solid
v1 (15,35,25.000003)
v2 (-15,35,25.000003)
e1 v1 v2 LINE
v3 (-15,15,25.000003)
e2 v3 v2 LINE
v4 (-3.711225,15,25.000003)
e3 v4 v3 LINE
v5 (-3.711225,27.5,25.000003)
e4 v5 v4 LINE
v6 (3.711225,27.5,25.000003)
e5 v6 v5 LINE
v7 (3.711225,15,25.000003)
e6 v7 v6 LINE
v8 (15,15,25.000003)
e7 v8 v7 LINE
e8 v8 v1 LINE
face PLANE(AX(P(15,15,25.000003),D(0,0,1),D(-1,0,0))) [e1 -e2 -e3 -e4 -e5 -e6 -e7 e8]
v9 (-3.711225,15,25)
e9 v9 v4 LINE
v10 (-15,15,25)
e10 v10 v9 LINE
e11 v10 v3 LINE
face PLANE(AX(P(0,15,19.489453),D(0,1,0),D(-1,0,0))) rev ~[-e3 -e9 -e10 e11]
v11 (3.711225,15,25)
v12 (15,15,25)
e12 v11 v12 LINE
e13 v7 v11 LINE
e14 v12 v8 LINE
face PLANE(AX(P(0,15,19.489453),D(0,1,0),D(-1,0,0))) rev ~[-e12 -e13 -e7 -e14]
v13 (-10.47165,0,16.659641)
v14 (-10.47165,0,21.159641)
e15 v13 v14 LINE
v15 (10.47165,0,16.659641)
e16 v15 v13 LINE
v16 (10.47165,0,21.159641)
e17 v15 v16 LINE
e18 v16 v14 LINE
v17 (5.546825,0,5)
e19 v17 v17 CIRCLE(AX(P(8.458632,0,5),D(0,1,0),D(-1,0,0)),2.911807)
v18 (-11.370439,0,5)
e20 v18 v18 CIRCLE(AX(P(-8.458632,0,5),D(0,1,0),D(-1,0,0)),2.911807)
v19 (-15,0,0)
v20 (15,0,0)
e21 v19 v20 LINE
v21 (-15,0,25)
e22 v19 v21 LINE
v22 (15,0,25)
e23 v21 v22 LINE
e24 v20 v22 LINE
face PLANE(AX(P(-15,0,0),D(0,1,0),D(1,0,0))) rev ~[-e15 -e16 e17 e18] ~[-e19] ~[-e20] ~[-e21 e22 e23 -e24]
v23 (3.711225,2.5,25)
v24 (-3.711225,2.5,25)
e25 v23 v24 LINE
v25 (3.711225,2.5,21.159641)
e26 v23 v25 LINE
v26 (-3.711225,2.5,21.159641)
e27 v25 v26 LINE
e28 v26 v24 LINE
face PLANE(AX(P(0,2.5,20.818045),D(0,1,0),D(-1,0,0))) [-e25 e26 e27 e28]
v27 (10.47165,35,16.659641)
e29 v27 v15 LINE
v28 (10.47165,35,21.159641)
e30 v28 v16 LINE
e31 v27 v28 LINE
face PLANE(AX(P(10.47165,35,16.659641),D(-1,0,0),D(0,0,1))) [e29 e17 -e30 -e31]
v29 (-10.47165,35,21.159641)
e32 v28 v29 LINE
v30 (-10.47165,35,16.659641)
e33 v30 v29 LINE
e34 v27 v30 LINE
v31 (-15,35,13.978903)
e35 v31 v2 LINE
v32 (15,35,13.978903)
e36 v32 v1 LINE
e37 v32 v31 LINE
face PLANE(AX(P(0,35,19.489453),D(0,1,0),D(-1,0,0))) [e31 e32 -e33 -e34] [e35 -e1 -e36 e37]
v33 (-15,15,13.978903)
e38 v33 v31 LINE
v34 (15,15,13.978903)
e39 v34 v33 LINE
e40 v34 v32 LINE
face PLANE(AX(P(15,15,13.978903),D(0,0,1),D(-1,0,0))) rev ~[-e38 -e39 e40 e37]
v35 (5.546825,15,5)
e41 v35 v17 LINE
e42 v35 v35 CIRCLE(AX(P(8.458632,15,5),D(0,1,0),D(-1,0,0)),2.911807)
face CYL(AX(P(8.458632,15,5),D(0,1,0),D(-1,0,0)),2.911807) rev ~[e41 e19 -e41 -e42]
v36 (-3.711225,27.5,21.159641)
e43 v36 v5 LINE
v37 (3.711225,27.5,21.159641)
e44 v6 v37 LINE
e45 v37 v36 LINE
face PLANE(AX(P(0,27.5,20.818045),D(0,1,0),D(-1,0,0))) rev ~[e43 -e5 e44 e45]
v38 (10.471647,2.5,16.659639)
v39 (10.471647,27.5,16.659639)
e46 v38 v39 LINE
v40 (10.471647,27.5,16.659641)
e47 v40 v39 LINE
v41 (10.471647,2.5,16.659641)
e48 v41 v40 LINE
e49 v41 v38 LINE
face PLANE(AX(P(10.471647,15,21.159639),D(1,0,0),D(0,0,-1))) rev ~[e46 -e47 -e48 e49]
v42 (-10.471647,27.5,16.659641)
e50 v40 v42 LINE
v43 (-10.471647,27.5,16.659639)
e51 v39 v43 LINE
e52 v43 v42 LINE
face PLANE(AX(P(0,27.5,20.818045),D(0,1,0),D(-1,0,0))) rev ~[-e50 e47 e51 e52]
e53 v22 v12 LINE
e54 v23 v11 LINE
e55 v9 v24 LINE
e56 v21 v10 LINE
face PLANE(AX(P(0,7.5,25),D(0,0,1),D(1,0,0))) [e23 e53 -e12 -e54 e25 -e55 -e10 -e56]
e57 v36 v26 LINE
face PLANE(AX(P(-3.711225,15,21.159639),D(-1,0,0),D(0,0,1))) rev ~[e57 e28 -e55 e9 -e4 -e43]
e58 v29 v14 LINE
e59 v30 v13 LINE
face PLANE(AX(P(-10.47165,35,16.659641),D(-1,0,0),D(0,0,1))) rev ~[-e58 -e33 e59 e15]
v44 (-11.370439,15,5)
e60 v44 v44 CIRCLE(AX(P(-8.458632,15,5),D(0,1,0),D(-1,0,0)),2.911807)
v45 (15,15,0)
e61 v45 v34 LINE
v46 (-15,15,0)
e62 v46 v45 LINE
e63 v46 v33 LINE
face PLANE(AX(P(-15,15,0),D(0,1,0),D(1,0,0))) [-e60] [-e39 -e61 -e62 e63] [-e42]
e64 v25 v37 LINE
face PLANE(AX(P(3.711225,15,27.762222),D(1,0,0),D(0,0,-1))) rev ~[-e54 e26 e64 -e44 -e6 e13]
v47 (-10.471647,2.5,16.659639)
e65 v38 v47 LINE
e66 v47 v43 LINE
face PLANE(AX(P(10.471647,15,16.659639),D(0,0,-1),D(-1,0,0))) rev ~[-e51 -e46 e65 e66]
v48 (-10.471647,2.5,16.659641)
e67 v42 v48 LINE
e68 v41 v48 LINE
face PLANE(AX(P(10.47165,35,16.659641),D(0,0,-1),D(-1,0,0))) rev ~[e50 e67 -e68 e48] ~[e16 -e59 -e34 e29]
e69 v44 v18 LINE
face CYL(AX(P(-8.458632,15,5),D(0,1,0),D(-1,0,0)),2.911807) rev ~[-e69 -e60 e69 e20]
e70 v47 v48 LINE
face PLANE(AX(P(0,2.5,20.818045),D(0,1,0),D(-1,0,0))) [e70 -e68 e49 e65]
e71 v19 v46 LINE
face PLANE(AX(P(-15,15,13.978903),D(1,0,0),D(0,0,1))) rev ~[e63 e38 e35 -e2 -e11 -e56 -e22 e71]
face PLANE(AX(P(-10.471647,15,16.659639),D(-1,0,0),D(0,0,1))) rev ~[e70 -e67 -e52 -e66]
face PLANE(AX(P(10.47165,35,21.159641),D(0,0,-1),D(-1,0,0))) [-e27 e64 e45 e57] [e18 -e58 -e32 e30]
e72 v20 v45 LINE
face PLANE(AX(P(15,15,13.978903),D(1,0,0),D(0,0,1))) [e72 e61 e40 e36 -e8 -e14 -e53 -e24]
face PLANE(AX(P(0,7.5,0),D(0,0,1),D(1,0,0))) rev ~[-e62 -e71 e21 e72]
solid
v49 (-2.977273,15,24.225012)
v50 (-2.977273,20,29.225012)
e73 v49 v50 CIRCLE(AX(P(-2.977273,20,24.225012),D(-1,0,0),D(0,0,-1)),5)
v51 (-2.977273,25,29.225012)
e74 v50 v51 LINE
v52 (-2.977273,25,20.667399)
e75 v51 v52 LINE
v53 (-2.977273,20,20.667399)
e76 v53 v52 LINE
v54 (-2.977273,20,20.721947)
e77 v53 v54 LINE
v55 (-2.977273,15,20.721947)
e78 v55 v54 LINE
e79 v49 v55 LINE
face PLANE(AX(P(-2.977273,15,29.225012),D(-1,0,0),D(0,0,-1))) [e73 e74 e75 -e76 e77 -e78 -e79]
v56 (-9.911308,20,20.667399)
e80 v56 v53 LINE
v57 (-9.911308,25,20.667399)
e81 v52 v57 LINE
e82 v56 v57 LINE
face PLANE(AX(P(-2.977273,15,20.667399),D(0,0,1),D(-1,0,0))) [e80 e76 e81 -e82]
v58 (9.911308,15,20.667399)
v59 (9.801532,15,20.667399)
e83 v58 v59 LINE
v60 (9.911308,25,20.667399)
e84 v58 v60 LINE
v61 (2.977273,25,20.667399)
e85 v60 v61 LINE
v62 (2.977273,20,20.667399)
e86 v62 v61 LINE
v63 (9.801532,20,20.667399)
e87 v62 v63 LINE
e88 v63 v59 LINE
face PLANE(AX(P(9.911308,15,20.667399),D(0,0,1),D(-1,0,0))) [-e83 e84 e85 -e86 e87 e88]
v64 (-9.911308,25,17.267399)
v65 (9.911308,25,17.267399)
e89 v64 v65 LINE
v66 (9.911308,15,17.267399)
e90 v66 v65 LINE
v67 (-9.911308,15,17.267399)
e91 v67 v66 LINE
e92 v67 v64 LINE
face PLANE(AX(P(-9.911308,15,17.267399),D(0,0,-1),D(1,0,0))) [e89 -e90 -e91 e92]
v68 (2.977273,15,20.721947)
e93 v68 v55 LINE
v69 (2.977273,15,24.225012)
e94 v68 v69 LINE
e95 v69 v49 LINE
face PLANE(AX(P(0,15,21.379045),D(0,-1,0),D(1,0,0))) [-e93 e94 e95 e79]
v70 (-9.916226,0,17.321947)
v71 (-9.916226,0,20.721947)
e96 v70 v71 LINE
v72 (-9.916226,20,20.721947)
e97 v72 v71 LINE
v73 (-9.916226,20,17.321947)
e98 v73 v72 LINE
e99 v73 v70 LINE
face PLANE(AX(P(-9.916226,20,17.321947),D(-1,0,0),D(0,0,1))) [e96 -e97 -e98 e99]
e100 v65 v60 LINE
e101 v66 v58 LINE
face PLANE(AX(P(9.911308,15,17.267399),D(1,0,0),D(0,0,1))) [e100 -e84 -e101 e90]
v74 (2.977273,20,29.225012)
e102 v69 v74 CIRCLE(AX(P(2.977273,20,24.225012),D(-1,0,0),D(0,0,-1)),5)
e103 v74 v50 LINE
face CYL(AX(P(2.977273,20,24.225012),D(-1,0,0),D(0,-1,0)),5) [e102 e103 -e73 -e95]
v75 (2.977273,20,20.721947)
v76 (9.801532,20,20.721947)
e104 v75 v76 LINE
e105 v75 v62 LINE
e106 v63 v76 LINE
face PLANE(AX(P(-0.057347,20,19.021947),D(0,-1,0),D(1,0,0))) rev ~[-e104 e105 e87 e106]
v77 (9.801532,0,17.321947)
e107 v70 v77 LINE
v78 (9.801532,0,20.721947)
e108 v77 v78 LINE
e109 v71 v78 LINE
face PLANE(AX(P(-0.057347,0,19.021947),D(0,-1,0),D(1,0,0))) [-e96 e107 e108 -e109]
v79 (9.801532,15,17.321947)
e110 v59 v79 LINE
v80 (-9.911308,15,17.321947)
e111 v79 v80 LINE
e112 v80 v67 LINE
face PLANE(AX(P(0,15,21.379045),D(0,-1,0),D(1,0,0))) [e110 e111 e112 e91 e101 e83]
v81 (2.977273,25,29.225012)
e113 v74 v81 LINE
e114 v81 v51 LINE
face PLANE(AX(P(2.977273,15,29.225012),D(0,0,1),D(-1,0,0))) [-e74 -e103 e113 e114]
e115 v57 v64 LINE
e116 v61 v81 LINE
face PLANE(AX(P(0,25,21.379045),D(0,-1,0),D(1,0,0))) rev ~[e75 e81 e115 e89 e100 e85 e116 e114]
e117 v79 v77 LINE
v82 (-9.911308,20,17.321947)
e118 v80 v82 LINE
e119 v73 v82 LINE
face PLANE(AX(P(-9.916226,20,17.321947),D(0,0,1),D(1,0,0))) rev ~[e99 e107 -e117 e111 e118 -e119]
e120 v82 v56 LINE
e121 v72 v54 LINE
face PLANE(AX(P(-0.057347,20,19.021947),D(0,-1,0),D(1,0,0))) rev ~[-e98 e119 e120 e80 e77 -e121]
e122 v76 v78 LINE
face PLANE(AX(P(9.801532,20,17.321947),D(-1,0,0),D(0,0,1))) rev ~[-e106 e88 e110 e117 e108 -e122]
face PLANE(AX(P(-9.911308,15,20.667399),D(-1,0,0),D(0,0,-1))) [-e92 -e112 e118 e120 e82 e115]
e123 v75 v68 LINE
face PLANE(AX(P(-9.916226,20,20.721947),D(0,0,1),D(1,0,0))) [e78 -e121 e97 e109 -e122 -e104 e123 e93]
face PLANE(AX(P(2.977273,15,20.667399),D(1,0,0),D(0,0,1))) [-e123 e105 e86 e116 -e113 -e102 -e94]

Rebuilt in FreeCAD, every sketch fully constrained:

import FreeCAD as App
import Part
import Sketcher
from FreeCAD import Vector
Q = App.Units.Quantity


def edges_at(feature, points):
    """Names of the edges that pass closest to the given points."""
    edges = feature.Shape.Edges
    near = lambda p: min(range(len(edges)), key=lambda i: edges[i].distToShape(Part.Vertex(*p))[0])
    return sorted({f"Edge{near(p) + 1}" for p in points})

doc = App.newDocument("Part")
body = doc.addObject("PartDesign::Body", "Body")

sketch1 = body.newObject("Sketcher::SketchObject", "Sketch")
sketch1.AttachmentSupport = (doc.getObject("XY_Plane"), [""])
sketch1.MapMode = "FlatFace"
sketch1.addGeometry(Part.LineSegment(Vector(-15, 15, 0), Vector(-15, 0, 0)), False)
sketch1.addGeometry(Part.LineSegment(Vector(-15, 0, 0), Vector(15, 0, 0)), False)
sketch1.addGeometry(Part.LineSegment(Vector(15, 0, 0), Vector(15, 15, 0)), False)
sketch1.addGeometry(Part.LineSegment(Vector(15, 15, 0), Vector(-15, 15, 0)), False)
sketch1.addConstraint(Sketcher.Constraint("Coincident", 0, 2, 1, 1))
sketch1.addConstraint(Sketcher.Constraint("Coincident", 1, 2, 2, 1))
sketch1.addConstraint(Sketcher.Constraint("Coincident", 2, 2, 3, 1))
sketch1.addConstraint(Sketcher.Constraint("Coincident", 3, 2, 0, 1))
sketch1.addConstraint(Sketcher.Constraint("Vertical", 0))
sketch1.addConstraint(Sketcher.Constraint("Horizontal", 1))
sketch1.addConstraint(Sketcher.Constraint("Vertical", 2))
sketch1.addConstraint(Sketcher.Constraint("Horizontal", 3))
sketch1.addConstraint(Sketcher.Constraint("Symmetric", 0, 2, 1, 2, -1, 1))
sketch1.addConstraint(Sketcher.Constraint("DistanceX", 1, 1, 1, 2, Q("30 mm")))
sketch1.addConstraint(Sketcher.Constraint("DistanceY", 0, 2, 0, 1, Q("15 mm")))
pad1 = body.newObject("PartDesign::Pad", "Pad")
pad1.Profile = sketch1
pad1.Length = 25

sketch2 = body.newObject("Sketcher::SketchObject", "Sketch001")
sketch2.AttachmentSupport = (doc.getObject("XZ_Plane"), [""])
sketch2.MapMode = "FlatFace"
sketch2.AttachmentOffset = App.Placement(Vector(0, 0, -15), App.Rotation())
sketch2.addGeometry(Part.LineSegment(Vector(15, 25, 0), Vector(15, 14, 0)), False)
sketch2.addGeometry(Part.LineSegment(Vector(15, 14, 0), Vector(-15, 14, 0)), False)
sketch2.addGeometry(Part.LineSegment(Vector(-15, 14, 0), Vector(-15, 25, 0)), False)
sketch2.addGeometry(Part.LineSegment(Vector(-15, 25, 0), Vector(15, 25, 0)), False)
sketch2.addConstraint(Sketcher.Constraint("Coincident", 0, 2, 1, 1))
sketch2.addConstraint(Sketcher.Constraint("Coincident", 1, 2, 2, 1))
sketch2.addConstraint(Sketcher.Constraint("Coincident", 2, 2, 3, 1))
sketch2.addConstraint(Sketcher.Constraint("Coincident", 3, 2, 0, 1))
sketch2.addConstraint(Sketcher.Constraint("Vertical", 0))
sketch2.addConstraint(Sketcher.Constraint("Horizontal", 1))
sketch2.addConstraint(Sketcher.Constraint("Vertical", 2))
sketch2.addConstraint(Sketcher.Constraint("Horizontal", 3))
sketch2.addConstraint(Sketcher.Constraint("DistanceX", 1, 2, 1, 1, Q("30 mm")))
sketch2.addConstraint(Sketcher.Constraint("DistanceX", -1, 1, 0, 2, Q("15 mm")))
sketch2.addConstraint(Sketcher.Constraint("DistanceY", 0, 2, 0, 1, Q("11.021101 mm")))
sketch2.addConstraint(Sketcher.Constraint("DistanceY", -1, 1, 0, 2, Q("13.978903 mm")))
pad2 = body.newObject("PartDesign::Pad", "Pad001")
pad2.Profile = sketch2
pad2.Length = 20
pad2.Reversed = True

sketch3 = body.newObject("Sketcher::SketchObject", "Sketch002")
sketch3.AttachmentSupport = (doc.getObject("XZ_Plane"), [""])
sketch3.MapMode = "FlatFace"
sketch3.AttachmentOffset = App.Placement(Vector(0, 0, -15), App.Rotation())
sketch3.addGeometry(Part.LineSegment(Vector(3.7, 27.8, 0), Vector(3.7, 21.2, 0)), False)
sketch3.addGeometry(Part.LineSegment(Vector(3.7, 21.2, 0), Vector(10.5, 21.2, 0)), False)
sketch3.addGeometry(Part.LineSegment(Vector(10.5, 21.2, 0), Vector(10.5, 16.7, 0)), False)
sketch3.addGeometry(Part.LineSegment(Vector(10.5, 16.7, 0), Vector(-10.5, 16.7, 0)), False)
sketch3.addGeometry(Part.LineSegment(Vector(-10.5, 16.7, 0), Vector(-10.5, 21.2, 0)), False)
sketch3.addGeometry(Part.LineSegment(Vector(-10.5, 21.2, 0), Vector(-3.7, 21.2, 0)), False)
sketch3.addGeometry(Part.LineSegment(Vector(-3.7, 21.2, 0), Vector(-3.7, 27.8, 0)), False)
sketch3.addGeometry(Part.LineSegment(Vector(-3.7, 27.8, 0), Vector(3.7, 27.8, 0)), False)
sketch3.addConstraint(Sketcher.Constraint("Coincident", 0, 2, 1, 1))
sketch3.addConstraint(Sketcher.Constraint("Coincident", 1, 2, 2, 1))
sketch3.addConstraint(Sketcher.Constraint("Coincident", 2, 2, 3, 1))
sketch3.addConstraint(Sketcher.Constraint("Coincident", 3, 2, 4, 1))
sketch3.addConstraint(Sketcher.Constraint("Coincident", 4, 2, 5, 1))
sketch3.addConstraint(Sketcher.Constraint("Coincident", 5, 2, 6, 1))
sketch3.addConstraint(Sketcher.Constraint("Coincident", 6, 2, 7, 1))
sketch3.addConstraint(Sketcher.Constraint("Coincident", 7, 2, 0, 1))
sketch3.addConstraint(Sketcher.Constraint("Vertical", 0))
sketch3.addConstraint(Sketcher.Constraint("Horizontal", 1))
sketch3.addConstraint(Sketcher.Constraint("Vertical", 2))
sketch3.addConstraint(Sketcher.Constraint("Horizontal", 3))
sketch3.addConstraint(Sketcher.Constraint("Vertical", 4))
sketch3.addConstraint(Sketcher.Constraint("Horizontal", 5))
sketch3.addConstraint(Sketcher.Constraint("Vertical", 6))
sketch3.addConstraint(Sketcher.Constraint("Horizontal", 7))
sketch3.addConstraint(Sketcher.Constraint("Symmetric", 1, 2, 4, 2, -2))
sketch3.addConstraint(Sketcher.Constraint("Equal", 1, 5))
sketch3.addConstraint(Sketcher.Constraint("DistanceY", 2, 2, 2, 1, Q("4.5 mm")))
sketch3.addConstraint(Sketcher.Constraint("DistanceX", 7, 1, 7, 2, Q("7.42245 mm")))
sketch3.addConstraint(Sketcher.Constraint("DistanceX", 1, 1, 1, 2, Q("6.760422 mm")))
sketch3.addConstraint(Sketcher.Constraint("DistanceY", 0, 2, 0, 1, Q("6.602583 mm")))
sketch3.addConstraint(Sketcher.Constraint("DistanceY", -1, 1, 0, 2, Q("21.159639 mm")))
pocket1 = body.newObject("PartDesign::Pocket", "Pocket")
pocket1.Profile = sketch3
pocket1.Length = 25
pocket1.Midplane = True

sketch4 = body.newObject("Sketcher::SketchObject", "Sketch003")
sketch4.AttachmentSupport = (doc.getObject("XZ_Plane"), [""])
sketch4.MapMode = "FlatFace"
sketch4.AttachmentOffset = App.Placement(Vector(0, 0, -35), App.Rotation())
sketch4.addGeometry(Part.LineSegment(Vector(10.5, 21.2, 0), Vector(10.5, 16.7, 0)), False)
sketch4.addGeometry(Part.LineSegment(Vector(10.5, 16.7, 0), Vector(-10.5, 16.7, 0)), False)
sketch4.addGeometry(Part.LineSegment(Vector(-10.5, 16.7, 0), Vector(-10.5, 21.2, 0)), False)
sketch4.addGeometry(Part.LineSegment(Vector(-10.5, 21.2, 0), Vector(10.5, 21.2, 0)), False)
sketch4.addConstraint(Sketcher.Constraint("Coincident", 0, 2, 1, 1))
sketch4.addConstraint(Sketcher.Constraint("Coincident", 1, 2, 2, 1))
sketch4.addConstraint(Sketcher.Constraint("Coincident", 2, 2, 3, 1))
sketch4.addConstraint(Sketcher.Constraint("Coincident", 3, 2, 0, 1))
sketch4.addConstraint(Sketcher.Constraint("Vertical", 0))
sketch4.addConstraint(Sketcher.Constraint("Horizontal", 1))
sketch4.addConstraint(Sketcher.Constraint("Vertical", 2))
sketch4.addConstraint(Sketcher.Constraint("Horizontal", 3))
sketch4.addConstraint(Sketcher.Constraint("DistanceY", 0, 2, 0, 1, Q("4.5 mm")))
sketch4.addConstraint(Sketcher.Constraint("DistanceX", 1, 2, 1, 1, Q("20.9433 mm")))
sketch4.addConstraint(Sketcher.Constraint("DistanceX", -1, 1, 0, 2, Q("10.47165 mm")))
sketch4.addConstraint(Sketcher.Constraint("DistanceY", -1, 1, 0, 2, Q("16.659641 mm")))
pocket2 = body.newObject("PartDesign::Pocket", "Pocket001")
pocket2.Profile = sketch4
pocket2.Type = "ThroughAll"
pocket2.Reversed = True

sketch5 = body.newObject("Sketcher::SketchObject", "Sketch004")
sketch5.AttachmentSupport = (doc.getObject("XZ_Plane"), [""])
sketch5.MapMode = "FlatFace"
sketch5.AttachmentOffset = App.Placement(Vector(0, 0, -15), App.Rotation())
sketch5.addGeometry(Part.Circle(Vector(-8.5, 5, 0), Vector(0, 0, 1), 2.9), False)
sketch5.addGeometry(Part.Circle(Vector(8.5, 5, 0), Vector(0, 0, 1), 2.9), False)
sketch5.addConstraint(Sketcher.Constraint("Equal", 0, 1))
sketch5.addConstraint(Sketcher.Constraint("Symmetric", 0, 3, 1, 3, -2))
sketch5.addConstraint(Sketcher.Constraint("DistanceY", -1, 1, 0, 3, Q("5 mm")))
sketch5.addConstraint(Sketcher.Constraint("Diameter", 0, Q("5.823614 mm")))
sketch5.addConstraint(Sketcher.Constraint("DistanceX", 0, 3, -1, 1, Q("8.458632 mm")))
pocket3 = body.newObject("PartDesign::Pocket", "Pocket002")
pocket3.Profile = sketch5
pocket3.Type = "ThroughAll"
pocket3.Reversed = True
body2 = doc.addObject("PartDesign::Body", "Body001")

sketch6 = body2.newObject("Sketcher::SketchObject", "Sketch005")
sketch6.AttachmentSupport = (doc.getObject("XZ_Plane001"), [""])
sketch6.MapMode = "FlatFace"
sketch6.AttachmentOffset = App.Placement(Vector(0, 0, -20), App.Rotation())
sketch6.addGeometry(Part.LineSegment(Vector(-9.9, 20.7, 0), Vector(-9.9, 17.3, 0)), False)
sketch6.addGeometry(Part.LineSegment(Vector(-9.9, 17.3, 0), Vector(9.8, 17.3, 0)), False)
sketch6.addGeometry(Part.LineSegment(Vector(9.8, 17.3, 0), Vector(9.8, 20.7, 0)), False)
sketch6.addGeometry(Part.LineSegment(Vector(9.8, 20.7, 0), Vector(-9.9, 20.7, 0)), False)
sketch6.addConstraint(Sketcher.Constraint("Coincident", 0, 2, 1, 1))
sketch6.addConstraint(Sketcher.Constraint("Coincident", 1, 2, 2, 1))
sketch6.addConstraint(Sketcher.Constraint("Coincident", 2, 2, 3, 1))
sketch6.addConstraint(Sketcher.Constraint("Coincident", 3, 2, 0, 1))
sketch6.addConstraint(Sketcher.Constraint("Vertical", 0))
sketch6.addConstraint(Sketcher.Constraint("Horizontal", 1))
sketch6.addConstraint(Sketcher.Constraint("Vertical", 2))
sketch6.addConstraint(Sketcher.Constraint("Horizontal", 3))
sketch6.addConstraint(Sketcher.Constraint("DistanceY", 0, 2, 0, 1, Q("3.4 mm")))
sketch6.addConstraint(Sketcher.Constraint("DistanceX", 1, 1, 1, 2, Q("19.717758 mm")))
sketch6.addConstraint(Sketcher.Constraint("DistanceX", 0, 2, -1, 1, Q("9.916226 mm")))
sketch6.addConstraint(Sketcher.Constraint("DistanceY", -1, 1, 0, 2, Q("17.321947 mm")))
pad3 = body2.newObject("PartDesign::Pad", "Pad002")
pad3.Profile = sketch6
pad3.Length = 20
body3 = doc.addObject("PartDesign::Body", "Body002")
body3.AllowCompound = True

sketch7 = body3.newObject("Sketcher::SketchObject", "Sketch006")
sketch7.AttachmentSupport = (doc.getObject("XZ_Plane002"), [""])
sketch7.MapMode = "FlatFace"
sketch7.AttachmentOffset = App.Placement(Vector(0, 0, -15), App.Rotation())
sketch7.addGeometry(Part.LineSegment(Vector(-3, 29.2, 0), Vector(-3, 20.7, 0)), False)
sketch7.addGeometry(Part.LineSegment(Vector(-3, 20.7, 0), Vector(-9.9, 20.7, 0)), False)
sketch7.addGeometry(Part.LineSegment(Vector(-9.9, 20.7, 0), Vector(-9.9, 17.3, 0)), False)
sketch7.addGeometry(Part.LineSegment(Vector(-9.9, 17.3, 0), Vector(9.9, 17.3, 0)), False)
sketch7.addGeometry(Part.LineSegment(Vector(9.9, 17.3, 0), Vector(9.9, 20.7, 0)), False)
sketch7.addGeometry(Part.LineSegment(Vector(9.9, 20.7, 0), Vector(3, 20.7, 0)), False)
sketch7.addGeometry(Part.LineSegment(Vector(3, 20.7, 0), Vector(3, 29.2, 0)), False)
sketch7.addGeometry(Part.LineSegment(Vector(3, 29.2, 0), Vector(-3, 29.2, 0)), False)
sketch7.addConstraint(Sketcher.Constraint("Coincident", 0, 2, 1, 1))
sketch7.addConstraint(Sketcher.Constraint("Coincident", 1, 2, 2, 1))
sketch7.addConstraint(Sketcher.Constraint("Coincident", 2, 2, 3, 1))
sketch7.addConstraint(Sketcher.Constraint("Coincident", 3, 2, 4, 1))
sketch7.addConstraint(Sketcher.Constraint("Coincident", 4, 2, 5, 1))
sketch7.addConstraint(Sketcher.Constraint("Coincident", 5, 2, 6, 1))
sketch7.addConstraint(Sketcher.Constraint("Coincident", 6, 2, 7, 1))
sketch7.addConstraint(Sketcher.Constraint("Coincident", 7, 2, 0, 1))
sketch7.addConstraint(Sketcher.Constraint("Vertical", 0))
sketch7.addConstraint(Sketcher.Constraint("Horizontal", 1))
sketch7.addConstraint(Sketcher.Constraint("Vertical", 2))
sketch7.addConstraint(Sketcher.Constraint("Horizontal", 3))
sketch7.addConstraint(Sketcher.Constraint("Vertical", 4))
sketch7.addConstraint(Sketcher.Constraint("Horizontal", 5))
sketch7.addConstraint(Sketcher.Constraint("Vertical", 6))
sketch7.addConstraint(Sketcher.Constraint("Horizontal", 7))
sketch7.addConstraint(Sketcher.Constraint("Symmetric", 1, 2, 4, 2, -2))
sketch7.addConstraint(Sketcher.Constraint("Equal", 1, 5))
sketch7.addConstraint(Sketcher.Constraint("DistanceY", 2, 2, 2, 1, Q("3.4 mm")))
sketch7.addConstraint(Sketcher.Constraint("DistanceY", -1, 1, 0, 2, Q("20.667399 mm")))
sketch7.addConstraint(Sketcher.Constraint("DistanceX", 1, 2, 1, 1, Q("6.934035 mm")))
sketch7.addConstraint(Sketcher.Constraint("DistanceX", 3, 1, 3, 2, Q("19.822616 mm")))
sketch7.addConstraint(Sketcher.Constraint("DistanceY", 0, 2, 0, 1, Q("8.557613 mm")))
pad4 = body3.newObject("PartDesign::Pad", "Pad003")
pad4.Profile = sketch7
pad4.Length = 10
pad4.Reversed = True
doc.recompute()

boolean = body3.newObject("PartDesign::Boolean", "Boolean")
boolean.Type = "Fuse"
boolean.addObjects([body2])
doc.recompute()

boolean2 = body3.newObject("PartDesign::Boolean", "Boolean001")
boolean2.Type = "Fuse"
boolean2.addObjects([body])
doc.recompute()

fillet = body3.newObject("PartDesign::Fillet", "Fillet")
fillet.Base = (boolean2, edges_at(boolean2, [(0, 15, 29.225)]))
fillet.Radius = 5

doc.recompute()
